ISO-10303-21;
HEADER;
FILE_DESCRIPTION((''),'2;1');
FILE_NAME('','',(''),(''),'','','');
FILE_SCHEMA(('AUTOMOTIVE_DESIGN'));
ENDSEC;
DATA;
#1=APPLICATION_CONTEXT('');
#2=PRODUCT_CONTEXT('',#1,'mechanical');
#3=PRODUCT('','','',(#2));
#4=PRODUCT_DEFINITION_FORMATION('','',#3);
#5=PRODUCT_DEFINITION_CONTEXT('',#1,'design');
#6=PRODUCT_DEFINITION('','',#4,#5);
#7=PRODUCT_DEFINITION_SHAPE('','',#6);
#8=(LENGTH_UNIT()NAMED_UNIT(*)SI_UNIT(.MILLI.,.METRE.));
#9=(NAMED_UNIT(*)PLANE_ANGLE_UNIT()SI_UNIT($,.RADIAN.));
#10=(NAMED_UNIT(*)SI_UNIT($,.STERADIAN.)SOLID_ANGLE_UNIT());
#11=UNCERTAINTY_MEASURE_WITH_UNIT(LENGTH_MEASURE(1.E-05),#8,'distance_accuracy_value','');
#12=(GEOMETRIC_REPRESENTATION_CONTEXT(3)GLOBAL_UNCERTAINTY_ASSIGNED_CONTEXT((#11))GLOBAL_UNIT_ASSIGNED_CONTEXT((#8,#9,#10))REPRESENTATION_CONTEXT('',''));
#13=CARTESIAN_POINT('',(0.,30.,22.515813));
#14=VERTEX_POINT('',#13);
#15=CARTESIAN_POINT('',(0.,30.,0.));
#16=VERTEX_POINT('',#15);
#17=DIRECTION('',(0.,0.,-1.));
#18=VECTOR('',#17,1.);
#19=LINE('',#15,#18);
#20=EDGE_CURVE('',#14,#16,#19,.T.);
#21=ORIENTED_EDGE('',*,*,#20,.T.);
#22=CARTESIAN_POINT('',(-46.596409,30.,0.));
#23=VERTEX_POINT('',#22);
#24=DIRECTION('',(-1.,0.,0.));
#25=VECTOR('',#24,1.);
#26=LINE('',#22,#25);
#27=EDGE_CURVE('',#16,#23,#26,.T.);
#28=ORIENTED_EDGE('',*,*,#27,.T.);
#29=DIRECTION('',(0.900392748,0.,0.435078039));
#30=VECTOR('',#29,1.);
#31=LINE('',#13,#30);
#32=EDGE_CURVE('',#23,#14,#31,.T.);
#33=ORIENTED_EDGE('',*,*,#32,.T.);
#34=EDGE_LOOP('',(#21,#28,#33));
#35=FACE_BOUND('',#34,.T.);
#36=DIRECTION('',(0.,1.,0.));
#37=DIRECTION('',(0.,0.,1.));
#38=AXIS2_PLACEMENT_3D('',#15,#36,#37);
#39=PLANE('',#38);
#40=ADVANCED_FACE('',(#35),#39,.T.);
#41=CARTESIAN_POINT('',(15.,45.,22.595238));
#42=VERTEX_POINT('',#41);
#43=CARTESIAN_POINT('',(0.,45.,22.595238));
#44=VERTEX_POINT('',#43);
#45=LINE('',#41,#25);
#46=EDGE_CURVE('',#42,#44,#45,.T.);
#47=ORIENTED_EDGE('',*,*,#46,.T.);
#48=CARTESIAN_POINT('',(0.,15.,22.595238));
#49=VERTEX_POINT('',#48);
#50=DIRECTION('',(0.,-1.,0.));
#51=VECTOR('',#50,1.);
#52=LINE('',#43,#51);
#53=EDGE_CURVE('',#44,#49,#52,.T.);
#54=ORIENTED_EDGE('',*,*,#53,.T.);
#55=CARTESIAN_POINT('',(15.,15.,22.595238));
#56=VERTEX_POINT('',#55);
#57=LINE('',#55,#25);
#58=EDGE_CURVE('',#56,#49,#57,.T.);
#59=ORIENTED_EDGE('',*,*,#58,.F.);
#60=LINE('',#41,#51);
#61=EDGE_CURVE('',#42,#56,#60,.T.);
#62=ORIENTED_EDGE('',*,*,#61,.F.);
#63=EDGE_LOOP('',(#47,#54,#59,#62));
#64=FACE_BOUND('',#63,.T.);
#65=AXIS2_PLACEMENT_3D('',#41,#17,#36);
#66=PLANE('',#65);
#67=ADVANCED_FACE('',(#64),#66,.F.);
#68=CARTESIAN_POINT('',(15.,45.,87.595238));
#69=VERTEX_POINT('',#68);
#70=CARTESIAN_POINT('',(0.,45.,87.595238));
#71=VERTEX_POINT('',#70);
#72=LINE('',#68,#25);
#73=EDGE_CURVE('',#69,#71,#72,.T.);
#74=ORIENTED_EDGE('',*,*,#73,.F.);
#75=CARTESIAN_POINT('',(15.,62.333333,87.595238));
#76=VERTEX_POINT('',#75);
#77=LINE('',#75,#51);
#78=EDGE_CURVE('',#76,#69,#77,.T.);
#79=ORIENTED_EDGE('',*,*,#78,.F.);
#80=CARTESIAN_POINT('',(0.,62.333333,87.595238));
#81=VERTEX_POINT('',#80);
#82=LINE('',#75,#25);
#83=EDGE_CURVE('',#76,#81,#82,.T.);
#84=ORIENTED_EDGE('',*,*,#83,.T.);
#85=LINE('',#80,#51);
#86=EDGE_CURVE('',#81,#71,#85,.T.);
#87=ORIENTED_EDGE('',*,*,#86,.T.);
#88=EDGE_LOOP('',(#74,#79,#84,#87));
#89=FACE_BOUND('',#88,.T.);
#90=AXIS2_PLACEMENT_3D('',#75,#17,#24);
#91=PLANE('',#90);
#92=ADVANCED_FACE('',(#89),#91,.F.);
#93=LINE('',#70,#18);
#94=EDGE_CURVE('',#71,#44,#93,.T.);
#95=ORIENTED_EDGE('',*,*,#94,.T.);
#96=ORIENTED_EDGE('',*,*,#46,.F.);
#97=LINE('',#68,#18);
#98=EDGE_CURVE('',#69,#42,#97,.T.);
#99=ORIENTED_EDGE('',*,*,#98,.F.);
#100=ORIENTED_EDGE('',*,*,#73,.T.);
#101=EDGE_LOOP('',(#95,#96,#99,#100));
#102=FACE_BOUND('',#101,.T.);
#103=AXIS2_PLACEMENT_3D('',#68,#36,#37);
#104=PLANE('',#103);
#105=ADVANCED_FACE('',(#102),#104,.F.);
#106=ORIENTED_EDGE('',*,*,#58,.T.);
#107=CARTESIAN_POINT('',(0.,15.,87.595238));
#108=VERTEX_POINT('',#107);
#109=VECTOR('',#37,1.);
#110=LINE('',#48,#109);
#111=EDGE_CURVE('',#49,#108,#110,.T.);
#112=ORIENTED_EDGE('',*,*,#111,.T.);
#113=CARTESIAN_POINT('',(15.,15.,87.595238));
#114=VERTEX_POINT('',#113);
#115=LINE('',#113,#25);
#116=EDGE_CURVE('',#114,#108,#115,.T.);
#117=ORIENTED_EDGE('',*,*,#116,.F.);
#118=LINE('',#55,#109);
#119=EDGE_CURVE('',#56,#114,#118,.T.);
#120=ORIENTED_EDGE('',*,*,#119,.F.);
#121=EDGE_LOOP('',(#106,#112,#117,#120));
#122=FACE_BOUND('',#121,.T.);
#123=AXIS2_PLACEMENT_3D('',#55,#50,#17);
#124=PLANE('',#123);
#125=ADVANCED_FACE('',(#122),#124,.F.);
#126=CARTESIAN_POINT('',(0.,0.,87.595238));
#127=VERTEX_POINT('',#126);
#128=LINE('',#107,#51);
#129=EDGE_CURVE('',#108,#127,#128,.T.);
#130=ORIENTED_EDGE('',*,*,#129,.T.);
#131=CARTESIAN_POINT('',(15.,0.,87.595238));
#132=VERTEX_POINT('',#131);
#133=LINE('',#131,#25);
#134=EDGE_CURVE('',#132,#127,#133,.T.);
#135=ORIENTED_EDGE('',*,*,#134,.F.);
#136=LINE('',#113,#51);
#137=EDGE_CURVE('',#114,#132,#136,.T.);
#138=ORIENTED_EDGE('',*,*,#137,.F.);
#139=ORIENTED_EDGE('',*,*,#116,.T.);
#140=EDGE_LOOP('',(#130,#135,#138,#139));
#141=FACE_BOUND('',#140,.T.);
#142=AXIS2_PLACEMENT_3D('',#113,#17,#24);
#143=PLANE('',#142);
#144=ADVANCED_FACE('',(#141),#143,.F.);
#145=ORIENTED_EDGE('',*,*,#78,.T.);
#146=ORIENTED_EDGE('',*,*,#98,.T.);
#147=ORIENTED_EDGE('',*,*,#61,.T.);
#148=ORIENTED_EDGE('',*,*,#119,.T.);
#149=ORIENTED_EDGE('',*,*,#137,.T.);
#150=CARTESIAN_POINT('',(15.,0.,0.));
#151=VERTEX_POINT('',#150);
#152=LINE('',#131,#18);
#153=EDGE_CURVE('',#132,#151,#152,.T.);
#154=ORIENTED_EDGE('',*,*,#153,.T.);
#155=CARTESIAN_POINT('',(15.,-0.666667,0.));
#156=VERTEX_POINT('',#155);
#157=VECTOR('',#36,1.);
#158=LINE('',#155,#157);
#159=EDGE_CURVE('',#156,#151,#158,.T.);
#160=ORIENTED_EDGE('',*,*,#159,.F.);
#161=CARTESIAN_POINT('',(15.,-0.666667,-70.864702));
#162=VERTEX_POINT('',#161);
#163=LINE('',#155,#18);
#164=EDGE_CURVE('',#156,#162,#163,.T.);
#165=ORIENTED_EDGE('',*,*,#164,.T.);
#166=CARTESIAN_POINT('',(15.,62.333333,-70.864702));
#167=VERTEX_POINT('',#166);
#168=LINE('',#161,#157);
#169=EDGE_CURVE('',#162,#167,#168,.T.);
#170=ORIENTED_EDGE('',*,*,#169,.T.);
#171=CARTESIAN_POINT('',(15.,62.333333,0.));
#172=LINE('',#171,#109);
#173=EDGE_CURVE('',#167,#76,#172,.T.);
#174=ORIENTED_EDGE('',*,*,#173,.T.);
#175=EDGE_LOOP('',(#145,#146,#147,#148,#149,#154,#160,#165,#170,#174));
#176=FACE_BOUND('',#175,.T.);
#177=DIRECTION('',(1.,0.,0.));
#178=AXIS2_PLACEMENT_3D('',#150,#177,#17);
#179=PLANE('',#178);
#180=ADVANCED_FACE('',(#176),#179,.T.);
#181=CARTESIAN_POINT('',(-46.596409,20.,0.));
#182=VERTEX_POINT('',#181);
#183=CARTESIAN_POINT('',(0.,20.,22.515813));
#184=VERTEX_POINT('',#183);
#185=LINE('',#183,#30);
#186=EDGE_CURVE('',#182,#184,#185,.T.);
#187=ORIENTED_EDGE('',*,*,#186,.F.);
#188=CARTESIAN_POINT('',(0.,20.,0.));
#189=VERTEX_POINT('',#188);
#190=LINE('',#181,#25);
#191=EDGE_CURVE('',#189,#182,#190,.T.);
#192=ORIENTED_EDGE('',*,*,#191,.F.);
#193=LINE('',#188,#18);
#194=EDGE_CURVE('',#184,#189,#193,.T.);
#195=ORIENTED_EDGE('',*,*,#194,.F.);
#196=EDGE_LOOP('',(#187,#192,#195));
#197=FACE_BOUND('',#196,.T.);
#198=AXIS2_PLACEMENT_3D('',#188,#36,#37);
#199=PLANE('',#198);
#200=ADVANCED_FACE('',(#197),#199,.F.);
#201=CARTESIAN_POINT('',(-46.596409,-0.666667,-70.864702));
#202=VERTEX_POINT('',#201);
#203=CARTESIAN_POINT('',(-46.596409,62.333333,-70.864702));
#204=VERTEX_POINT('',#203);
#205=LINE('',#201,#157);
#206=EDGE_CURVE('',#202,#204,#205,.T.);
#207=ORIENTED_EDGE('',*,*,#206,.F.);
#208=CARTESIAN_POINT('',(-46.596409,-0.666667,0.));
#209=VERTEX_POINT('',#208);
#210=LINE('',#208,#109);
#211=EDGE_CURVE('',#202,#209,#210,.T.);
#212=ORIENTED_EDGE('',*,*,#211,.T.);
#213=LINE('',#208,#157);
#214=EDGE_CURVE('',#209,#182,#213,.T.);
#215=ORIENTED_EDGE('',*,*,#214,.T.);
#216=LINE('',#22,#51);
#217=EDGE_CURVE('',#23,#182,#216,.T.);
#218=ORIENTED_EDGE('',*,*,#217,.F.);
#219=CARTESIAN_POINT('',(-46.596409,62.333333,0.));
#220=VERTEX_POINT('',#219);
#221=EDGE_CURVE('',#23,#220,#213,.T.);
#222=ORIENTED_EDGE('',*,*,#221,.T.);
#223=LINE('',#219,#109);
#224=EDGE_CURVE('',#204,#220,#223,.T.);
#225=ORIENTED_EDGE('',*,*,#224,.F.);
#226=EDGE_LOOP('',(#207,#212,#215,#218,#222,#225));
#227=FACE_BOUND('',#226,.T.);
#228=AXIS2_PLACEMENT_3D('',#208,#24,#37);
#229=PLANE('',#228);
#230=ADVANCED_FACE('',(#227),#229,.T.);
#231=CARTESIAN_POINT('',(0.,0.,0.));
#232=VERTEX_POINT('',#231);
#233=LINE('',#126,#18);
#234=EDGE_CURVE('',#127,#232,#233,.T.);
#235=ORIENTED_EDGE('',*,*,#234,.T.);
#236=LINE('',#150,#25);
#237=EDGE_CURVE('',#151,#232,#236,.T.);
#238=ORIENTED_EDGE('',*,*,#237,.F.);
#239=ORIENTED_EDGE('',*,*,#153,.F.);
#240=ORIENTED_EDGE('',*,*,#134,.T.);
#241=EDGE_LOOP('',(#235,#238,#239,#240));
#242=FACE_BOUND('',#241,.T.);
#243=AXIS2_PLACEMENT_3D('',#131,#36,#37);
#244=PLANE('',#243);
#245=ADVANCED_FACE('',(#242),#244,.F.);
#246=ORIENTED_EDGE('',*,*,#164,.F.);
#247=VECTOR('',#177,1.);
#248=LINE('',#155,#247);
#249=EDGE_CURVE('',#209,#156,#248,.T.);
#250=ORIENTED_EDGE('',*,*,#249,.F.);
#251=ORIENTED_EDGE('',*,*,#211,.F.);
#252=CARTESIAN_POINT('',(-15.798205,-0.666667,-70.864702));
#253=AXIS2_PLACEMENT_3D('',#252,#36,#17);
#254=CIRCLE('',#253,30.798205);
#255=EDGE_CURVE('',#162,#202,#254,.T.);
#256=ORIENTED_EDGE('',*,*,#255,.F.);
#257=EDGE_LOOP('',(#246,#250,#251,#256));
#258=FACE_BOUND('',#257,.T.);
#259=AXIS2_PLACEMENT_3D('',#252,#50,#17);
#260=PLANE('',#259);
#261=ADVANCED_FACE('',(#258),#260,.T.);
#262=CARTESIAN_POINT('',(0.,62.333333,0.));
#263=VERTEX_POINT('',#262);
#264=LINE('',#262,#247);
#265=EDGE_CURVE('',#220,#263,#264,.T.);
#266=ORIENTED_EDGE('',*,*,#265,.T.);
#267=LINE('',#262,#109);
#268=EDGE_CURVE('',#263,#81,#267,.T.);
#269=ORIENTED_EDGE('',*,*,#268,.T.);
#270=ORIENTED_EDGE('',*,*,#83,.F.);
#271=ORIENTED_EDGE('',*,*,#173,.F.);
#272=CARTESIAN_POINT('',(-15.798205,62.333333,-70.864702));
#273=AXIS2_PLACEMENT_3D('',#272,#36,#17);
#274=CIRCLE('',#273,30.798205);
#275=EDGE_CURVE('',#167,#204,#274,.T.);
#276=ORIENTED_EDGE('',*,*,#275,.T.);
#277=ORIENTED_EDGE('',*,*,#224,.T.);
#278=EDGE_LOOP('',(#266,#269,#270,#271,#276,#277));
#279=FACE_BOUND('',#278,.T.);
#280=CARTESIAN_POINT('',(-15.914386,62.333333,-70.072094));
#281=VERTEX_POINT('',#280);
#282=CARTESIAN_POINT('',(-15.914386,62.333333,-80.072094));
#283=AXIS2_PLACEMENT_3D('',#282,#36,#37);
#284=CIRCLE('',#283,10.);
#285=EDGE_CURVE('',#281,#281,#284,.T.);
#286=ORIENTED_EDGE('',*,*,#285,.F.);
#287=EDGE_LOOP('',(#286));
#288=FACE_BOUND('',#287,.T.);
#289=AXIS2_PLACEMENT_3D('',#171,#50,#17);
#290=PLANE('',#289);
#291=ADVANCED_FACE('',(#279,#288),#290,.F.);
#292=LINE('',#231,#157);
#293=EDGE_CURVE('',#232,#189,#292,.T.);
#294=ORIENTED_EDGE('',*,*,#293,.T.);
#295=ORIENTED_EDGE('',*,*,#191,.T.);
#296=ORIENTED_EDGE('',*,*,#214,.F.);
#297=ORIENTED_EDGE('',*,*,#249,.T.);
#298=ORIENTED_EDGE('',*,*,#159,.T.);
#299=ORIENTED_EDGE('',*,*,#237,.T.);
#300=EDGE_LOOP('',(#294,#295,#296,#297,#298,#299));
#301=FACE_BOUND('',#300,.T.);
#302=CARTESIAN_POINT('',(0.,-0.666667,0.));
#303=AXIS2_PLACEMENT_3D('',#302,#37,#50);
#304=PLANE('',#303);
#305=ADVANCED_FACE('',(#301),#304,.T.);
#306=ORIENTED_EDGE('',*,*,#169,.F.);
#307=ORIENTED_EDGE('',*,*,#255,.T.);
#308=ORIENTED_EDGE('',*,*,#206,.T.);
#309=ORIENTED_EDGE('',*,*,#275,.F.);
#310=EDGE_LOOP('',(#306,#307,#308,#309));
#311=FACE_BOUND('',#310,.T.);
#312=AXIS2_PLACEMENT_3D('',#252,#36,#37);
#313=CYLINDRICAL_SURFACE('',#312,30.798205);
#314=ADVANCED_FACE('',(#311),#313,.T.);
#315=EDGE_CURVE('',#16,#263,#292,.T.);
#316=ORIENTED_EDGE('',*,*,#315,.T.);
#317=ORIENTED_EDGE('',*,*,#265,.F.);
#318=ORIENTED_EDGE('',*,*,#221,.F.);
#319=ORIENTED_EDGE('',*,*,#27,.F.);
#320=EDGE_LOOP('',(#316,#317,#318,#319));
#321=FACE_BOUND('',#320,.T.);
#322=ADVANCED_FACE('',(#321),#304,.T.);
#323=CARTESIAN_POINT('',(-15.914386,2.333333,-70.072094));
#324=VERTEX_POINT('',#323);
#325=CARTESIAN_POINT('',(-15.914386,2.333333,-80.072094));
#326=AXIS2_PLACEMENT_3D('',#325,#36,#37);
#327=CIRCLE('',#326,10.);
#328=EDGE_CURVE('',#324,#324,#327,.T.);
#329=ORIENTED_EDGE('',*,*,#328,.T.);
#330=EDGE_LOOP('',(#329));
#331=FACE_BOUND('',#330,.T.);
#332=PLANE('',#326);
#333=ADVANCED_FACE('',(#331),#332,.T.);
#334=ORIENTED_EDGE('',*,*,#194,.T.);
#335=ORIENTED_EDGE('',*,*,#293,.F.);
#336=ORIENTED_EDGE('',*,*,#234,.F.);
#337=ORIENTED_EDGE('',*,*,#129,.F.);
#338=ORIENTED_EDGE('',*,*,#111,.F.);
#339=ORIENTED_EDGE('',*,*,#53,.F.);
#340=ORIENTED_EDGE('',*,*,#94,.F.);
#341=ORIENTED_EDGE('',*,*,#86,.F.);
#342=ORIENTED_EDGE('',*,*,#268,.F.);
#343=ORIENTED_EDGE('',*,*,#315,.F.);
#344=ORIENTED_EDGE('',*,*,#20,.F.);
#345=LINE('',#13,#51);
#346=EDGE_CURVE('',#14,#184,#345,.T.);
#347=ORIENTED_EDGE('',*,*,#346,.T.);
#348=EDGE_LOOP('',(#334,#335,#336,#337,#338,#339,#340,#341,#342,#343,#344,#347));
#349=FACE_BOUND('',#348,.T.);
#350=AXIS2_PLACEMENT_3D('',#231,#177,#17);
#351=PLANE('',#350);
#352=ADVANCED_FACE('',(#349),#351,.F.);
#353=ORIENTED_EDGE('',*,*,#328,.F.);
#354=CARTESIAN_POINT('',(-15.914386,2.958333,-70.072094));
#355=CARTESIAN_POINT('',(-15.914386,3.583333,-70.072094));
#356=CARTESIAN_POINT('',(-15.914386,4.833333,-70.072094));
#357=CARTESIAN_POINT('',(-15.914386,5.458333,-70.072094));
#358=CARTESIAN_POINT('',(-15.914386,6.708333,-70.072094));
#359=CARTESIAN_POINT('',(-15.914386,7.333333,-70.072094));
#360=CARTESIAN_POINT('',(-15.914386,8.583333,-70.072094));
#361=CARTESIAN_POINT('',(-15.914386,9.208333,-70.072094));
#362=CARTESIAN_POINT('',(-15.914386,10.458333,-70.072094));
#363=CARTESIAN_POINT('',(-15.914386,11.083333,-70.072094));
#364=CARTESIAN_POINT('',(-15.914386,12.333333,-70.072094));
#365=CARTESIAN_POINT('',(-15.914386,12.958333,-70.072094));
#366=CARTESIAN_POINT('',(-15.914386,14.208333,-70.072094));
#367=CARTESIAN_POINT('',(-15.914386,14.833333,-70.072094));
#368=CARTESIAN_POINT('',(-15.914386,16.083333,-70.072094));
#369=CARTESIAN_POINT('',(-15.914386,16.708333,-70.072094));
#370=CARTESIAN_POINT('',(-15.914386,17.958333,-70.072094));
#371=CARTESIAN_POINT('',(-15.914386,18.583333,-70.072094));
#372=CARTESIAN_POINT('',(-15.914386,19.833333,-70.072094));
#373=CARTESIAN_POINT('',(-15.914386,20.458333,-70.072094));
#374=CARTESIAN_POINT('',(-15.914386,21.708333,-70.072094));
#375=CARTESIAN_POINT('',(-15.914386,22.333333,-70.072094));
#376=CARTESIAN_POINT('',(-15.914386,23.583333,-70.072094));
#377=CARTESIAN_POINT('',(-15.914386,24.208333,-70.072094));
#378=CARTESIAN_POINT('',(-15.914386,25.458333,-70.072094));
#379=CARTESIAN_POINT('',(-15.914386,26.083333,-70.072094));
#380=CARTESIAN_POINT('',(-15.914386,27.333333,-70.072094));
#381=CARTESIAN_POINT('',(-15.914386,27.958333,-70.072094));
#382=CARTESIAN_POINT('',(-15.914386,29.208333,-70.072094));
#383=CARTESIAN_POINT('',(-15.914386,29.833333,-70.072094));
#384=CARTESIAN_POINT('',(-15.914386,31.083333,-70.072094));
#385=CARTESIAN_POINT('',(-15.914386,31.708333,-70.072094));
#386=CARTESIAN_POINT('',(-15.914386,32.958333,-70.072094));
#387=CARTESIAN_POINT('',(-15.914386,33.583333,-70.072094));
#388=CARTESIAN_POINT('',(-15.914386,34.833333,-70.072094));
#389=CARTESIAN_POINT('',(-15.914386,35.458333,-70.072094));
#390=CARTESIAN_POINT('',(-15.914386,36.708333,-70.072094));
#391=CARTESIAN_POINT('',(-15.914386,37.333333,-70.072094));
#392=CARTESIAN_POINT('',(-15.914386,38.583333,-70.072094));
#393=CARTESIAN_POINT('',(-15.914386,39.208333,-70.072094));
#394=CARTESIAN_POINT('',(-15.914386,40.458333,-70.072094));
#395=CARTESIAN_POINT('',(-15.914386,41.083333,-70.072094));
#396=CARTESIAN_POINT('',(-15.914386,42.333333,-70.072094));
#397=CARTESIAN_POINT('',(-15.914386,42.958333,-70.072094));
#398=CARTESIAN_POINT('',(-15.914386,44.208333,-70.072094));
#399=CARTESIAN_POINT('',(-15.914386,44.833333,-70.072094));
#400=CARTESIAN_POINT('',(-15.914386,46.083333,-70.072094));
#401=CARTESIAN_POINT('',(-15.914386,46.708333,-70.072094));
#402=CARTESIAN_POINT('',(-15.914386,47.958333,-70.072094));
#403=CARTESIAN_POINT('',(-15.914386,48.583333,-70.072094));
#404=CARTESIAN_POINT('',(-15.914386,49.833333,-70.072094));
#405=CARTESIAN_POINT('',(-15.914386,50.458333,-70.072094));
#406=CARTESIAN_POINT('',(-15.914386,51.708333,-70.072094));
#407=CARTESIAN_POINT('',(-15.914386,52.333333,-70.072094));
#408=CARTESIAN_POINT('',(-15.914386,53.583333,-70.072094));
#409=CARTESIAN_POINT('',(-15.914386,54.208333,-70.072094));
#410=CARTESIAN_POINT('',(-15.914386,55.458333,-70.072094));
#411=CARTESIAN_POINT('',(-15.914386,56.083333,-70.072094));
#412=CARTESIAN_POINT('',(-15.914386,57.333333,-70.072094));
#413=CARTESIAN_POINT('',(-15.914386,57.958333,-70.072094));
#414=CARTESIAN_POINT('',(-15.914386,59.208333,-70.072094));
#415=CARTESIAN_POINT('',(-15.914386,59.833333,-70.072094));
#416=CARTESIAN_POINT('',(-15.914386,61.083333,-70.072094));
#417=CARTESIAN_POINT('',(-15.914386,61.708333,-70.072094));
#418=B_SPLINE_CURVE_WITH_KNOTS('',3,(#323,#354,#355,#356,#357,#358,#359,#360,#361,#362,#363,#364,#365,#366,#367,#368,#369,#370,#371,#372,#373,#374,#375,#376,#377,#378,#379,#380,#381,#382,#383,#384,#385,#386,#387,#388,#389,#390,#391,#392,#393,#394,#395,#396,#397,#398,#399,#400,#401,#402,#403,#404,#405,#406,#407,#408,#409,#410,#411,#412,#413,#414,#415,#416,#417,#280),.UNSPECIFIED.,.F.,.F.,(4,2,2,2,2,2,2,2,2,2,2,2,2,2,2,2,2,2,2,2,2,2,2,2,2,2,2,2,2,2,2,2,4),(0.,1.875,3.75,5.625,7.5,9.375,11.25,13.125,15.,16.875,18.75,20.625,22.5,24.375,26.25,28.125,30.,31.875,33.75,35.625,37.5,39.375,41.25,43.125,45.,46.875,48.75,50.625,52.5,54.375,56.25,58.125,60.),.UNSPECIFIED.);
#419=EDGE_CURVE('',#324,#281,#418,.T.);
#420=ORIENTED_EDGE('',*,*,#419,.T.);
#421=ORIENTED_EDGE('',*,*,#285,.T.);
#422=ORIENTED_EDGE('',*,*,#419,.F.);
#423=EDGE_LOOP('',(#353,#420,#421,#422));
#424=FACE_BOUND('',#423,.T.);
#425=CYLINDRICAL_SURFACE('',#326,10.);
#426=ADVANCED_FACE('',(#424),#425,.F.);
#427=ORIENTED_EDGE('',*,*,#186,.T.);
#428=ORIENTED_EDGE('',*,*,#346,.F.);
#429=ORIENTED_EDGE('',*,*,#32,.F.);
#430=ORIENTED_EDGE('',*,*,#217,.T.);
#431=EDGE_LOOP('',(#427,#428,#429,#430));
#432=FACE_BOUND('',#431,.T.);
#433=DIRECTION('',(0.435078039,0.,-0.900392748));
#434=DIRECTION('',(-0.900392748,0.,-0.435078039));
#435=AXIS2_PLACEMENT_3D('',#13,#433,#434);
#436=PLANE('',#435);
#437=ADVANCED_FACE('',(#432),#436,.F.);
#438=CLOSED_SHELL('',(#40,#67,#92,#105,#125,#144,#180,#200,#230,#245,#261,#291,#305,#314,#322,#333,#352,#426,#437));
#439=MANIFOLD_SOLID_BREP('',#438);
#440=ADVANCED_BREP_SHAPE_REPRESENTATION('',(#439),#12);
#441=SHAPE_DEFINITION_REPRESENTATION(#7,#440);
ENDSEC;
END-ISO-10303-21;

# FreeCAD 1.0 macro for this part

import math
import FreeCAD as App
import Part
import Sketcher


def add_polygon(sketch, points):
    """Adds a closed chain of lines whose ends are joined by coincident constraints."""
    first, n = sketch.GeometryCount, len(points)
    for a, b in zip(points, points[1:] + points[:1]):
        sketch.addGeometry(Part.LineSegment(App.Vector(*a, 0), App.Vector(*b, 0)), False)
    for i in range(n):
        sketch.addConstraint(Sketcher.Constraint("Coincident", first + i, 2, first + (i + 1) % n, 1))

doc = App.newDocument("Part")
body = doc.addObject("PartDesign::Body", "Body")

sketch1 = body.newObject("Sketcher::SketchObject", "Sketch")
sketch1.AttachmentSupport = (doc.getObject("YZ_Plane"), [""])
sketch1.MapMode = "FlatFace"
add_polygon(sketch1, [(0, 0), (62.333333, 0), (62.333333, 87.595238), (45, 87.595238), (45, 22.595238), (15, 22.595238), (15, 87.595238), (0, 87.595238)])
sketch1.addConstraint(Sketcher.Constraint("Horizontal", 0))
sketch1.addConstraint(Sketcher.Constraint("Vertical", 1))
sketch1.addConstraint(Sketcher.Constraint("Horizontal", 2))
sketch1.addConstraint(Sketcher.Constraint("Vertical", 3))
sketch1.addConstraint(Sketcher.Constraint("Horizontal", 4))
sketch1.addConstraint(Sketcher.Constraint("Vertical", 5))
sketch1.addConstraint(Sketcher.Constraint("Horizontal", 6))
sketch1.addConstraint(Sketcher.Constraint("Vertical", 7))
sketch1.addConstraint(Sketcher.Constraint("Coincident", 7, 2, -1, 1))
sketch1.addConstraint(Sketcher.Constraint("Horizontal", 2, 2, 5, 2))
sketch1.addConstraint(Sketcher.Constraint("DistanceX", 4, 2, 4, 1, 30.0))
sketch1.addConstraint(Sketcher.Constraint("DistanceX", 6, 2, 6, 1, 15.0))
sketch1.addConstraint(Sketcher.Constraint("DistanceY", 3, 2, 3, 1, 65.0))
sketch1.addConstraint(Sketcher.Constraint("DistanceY", 1, 1, 1, 2, 87.595238))
sketch1.addConstraint(Sketcher.Constraint("DistanceX", 0, 1, 0, 2, 62.333333))
pad1 = body.newObject("PartDesign::Pad", "Pad")
pad1.Profile = sketch1
pad1.Length = 15

sketch2 = body.newObject("Sketcher::SketchObject", "Sketch001")
sketch2.AttachmentSupport = (doc.getObject("XZ_Plane"), [""])
sketch2.MapMode = "FlatFace"
sketch2.AttachmentOffset = App.Placement(App.Vector(0, 0, -62.333333), App.Rotation())
sketch2.addGeometry(Part.LineSegment(App.Vector(15, 0, 0), App.Vector(15, -70.864702, 0)), False)
sketch2.addGeometry(Part.ArcOfCircle(Part.Circle(App.Vector(-15.798205, -70.864702, 0), App.Vector(0, 0, 1), 30.798205), math.radians(180), math.radians(360)), False)
sketch2.addGeometry(Part.LineSegment(App.Vector(-46.596409, -70.864702, 0), App.Vector(-46.596409, 0, 0)), False)
sketch2.addGeometry(Part.LineSegment(App.Vector(-46.596409, 0, 0), App.Vector(15, 0, 0)), False)
sketch2.addConstraint(Sketcher.Constraint("Tangent", 0, 2, 1, 2))
sketch2.addConstraint(Sketcher.Constraint("Tangent", 1, 1, 2, 1))
sketch2.addConstraint(Sketcher.Constraint("Coincident", 2, 2, 3, 1))
sketch2.addConstraint(Sketcher.Constraint("Coincident", 3, 2, 0, 1))
sketch2.addConstraint(Sketcher.Constraint("Vertical", 0))
sketch2.addConstraint(Sketcher.Constraint("Vertical", 2))
sketch2.addConstraint(Sketcher.Constraint("Horizontal", 3))
sketch2.addConstraint(Sketcher.Constraint("PointOnObject", 2, 2, -1))
sketch2.addConstraint(Sketcher.Constraint("DistanceX", -1, 1, 0, 2, 15.0))
sketch2.addConstraint(Sketcher.Constraint("Radius", 1, 30.798205))
sketch2.addConstraint(Sketcher.Constraint("DistanceY", 0, 2, 0, 1, 70.864702))
pad2 = body.newObject("PartDesign::Pad", "Pad001")
pad2.Profile = sketch2
pad2.Length = 63

sketch3 = body.newObject("Sketcher::SketchObject", "Sketch002")
sketch3.AttachmentSupport = (doc.getObject("XZ_Plane"), [""])
sketch3.MapMode = "FlatFace"
sketch3.AttachmentOffset = App.Placement(App.Vector(0, 0, -62.333333), App.Rotation())
sketch3.addGeometry(Part.Circle(App.Vector(-15.914386, -80.072094, 0), App.Vector(0, 0, 1), 10), False)
sketch3.addConstraint(Sketcher.Constraint("Diameter", 0, 20.0))
sketch3.addConstraint(Sketcher.Constraint("DistanceX", 0, 3, -1, 1, 15.914386))
sketch3.addConstraint(Sketcher.Constraint("DistanceY", 0, 3, -1, 1, 80.072094))
pocket1 = body.newObject("PartDesign::Pocket", "Pocket")
pocket1.Profile = sketch3
pocket1.Length = 60
pocket1.Reversed = True

sketch4 = body.newObject("Sketcher::SketchObject", "Sketch003")
sketch4.AttachmentSupport = (doc.getObject("XZ_Plane"), [""])
sketch4.MapMode = "FlatFace"
sketch4.AttachmentOffset = App.Placement(App.Vector(0, 0, -20), App.Rotation())
add_polygon(sketch4, [(0, 0), (-46.596409, 0), (0, 22.515813)])
sketch4.addConstraint(Sketcher.Constraint("Horizontal", 0))
sketch4.addConstraint(Sketcher.Constraint("Vertical", 2))
sketch4.addConstraint(Sketcher.Constraint("Coincident", 2, 2, -1, 1))
sketch4.addConstraint(Sketcher.Constraint("DistanceX", 0, 2, 0, 1, 46.596409))
sketch4.addConstraint(Sketcher.Constraint("DistanceY", 2, 2, 2, 1, 22.515813))
pad3 = body.newObject("PartDesign::Pad", "Pad002")
pad3.Profile = sketch4
pad3.Length = 10
pad3.Reversed = True

doc.recompute()
